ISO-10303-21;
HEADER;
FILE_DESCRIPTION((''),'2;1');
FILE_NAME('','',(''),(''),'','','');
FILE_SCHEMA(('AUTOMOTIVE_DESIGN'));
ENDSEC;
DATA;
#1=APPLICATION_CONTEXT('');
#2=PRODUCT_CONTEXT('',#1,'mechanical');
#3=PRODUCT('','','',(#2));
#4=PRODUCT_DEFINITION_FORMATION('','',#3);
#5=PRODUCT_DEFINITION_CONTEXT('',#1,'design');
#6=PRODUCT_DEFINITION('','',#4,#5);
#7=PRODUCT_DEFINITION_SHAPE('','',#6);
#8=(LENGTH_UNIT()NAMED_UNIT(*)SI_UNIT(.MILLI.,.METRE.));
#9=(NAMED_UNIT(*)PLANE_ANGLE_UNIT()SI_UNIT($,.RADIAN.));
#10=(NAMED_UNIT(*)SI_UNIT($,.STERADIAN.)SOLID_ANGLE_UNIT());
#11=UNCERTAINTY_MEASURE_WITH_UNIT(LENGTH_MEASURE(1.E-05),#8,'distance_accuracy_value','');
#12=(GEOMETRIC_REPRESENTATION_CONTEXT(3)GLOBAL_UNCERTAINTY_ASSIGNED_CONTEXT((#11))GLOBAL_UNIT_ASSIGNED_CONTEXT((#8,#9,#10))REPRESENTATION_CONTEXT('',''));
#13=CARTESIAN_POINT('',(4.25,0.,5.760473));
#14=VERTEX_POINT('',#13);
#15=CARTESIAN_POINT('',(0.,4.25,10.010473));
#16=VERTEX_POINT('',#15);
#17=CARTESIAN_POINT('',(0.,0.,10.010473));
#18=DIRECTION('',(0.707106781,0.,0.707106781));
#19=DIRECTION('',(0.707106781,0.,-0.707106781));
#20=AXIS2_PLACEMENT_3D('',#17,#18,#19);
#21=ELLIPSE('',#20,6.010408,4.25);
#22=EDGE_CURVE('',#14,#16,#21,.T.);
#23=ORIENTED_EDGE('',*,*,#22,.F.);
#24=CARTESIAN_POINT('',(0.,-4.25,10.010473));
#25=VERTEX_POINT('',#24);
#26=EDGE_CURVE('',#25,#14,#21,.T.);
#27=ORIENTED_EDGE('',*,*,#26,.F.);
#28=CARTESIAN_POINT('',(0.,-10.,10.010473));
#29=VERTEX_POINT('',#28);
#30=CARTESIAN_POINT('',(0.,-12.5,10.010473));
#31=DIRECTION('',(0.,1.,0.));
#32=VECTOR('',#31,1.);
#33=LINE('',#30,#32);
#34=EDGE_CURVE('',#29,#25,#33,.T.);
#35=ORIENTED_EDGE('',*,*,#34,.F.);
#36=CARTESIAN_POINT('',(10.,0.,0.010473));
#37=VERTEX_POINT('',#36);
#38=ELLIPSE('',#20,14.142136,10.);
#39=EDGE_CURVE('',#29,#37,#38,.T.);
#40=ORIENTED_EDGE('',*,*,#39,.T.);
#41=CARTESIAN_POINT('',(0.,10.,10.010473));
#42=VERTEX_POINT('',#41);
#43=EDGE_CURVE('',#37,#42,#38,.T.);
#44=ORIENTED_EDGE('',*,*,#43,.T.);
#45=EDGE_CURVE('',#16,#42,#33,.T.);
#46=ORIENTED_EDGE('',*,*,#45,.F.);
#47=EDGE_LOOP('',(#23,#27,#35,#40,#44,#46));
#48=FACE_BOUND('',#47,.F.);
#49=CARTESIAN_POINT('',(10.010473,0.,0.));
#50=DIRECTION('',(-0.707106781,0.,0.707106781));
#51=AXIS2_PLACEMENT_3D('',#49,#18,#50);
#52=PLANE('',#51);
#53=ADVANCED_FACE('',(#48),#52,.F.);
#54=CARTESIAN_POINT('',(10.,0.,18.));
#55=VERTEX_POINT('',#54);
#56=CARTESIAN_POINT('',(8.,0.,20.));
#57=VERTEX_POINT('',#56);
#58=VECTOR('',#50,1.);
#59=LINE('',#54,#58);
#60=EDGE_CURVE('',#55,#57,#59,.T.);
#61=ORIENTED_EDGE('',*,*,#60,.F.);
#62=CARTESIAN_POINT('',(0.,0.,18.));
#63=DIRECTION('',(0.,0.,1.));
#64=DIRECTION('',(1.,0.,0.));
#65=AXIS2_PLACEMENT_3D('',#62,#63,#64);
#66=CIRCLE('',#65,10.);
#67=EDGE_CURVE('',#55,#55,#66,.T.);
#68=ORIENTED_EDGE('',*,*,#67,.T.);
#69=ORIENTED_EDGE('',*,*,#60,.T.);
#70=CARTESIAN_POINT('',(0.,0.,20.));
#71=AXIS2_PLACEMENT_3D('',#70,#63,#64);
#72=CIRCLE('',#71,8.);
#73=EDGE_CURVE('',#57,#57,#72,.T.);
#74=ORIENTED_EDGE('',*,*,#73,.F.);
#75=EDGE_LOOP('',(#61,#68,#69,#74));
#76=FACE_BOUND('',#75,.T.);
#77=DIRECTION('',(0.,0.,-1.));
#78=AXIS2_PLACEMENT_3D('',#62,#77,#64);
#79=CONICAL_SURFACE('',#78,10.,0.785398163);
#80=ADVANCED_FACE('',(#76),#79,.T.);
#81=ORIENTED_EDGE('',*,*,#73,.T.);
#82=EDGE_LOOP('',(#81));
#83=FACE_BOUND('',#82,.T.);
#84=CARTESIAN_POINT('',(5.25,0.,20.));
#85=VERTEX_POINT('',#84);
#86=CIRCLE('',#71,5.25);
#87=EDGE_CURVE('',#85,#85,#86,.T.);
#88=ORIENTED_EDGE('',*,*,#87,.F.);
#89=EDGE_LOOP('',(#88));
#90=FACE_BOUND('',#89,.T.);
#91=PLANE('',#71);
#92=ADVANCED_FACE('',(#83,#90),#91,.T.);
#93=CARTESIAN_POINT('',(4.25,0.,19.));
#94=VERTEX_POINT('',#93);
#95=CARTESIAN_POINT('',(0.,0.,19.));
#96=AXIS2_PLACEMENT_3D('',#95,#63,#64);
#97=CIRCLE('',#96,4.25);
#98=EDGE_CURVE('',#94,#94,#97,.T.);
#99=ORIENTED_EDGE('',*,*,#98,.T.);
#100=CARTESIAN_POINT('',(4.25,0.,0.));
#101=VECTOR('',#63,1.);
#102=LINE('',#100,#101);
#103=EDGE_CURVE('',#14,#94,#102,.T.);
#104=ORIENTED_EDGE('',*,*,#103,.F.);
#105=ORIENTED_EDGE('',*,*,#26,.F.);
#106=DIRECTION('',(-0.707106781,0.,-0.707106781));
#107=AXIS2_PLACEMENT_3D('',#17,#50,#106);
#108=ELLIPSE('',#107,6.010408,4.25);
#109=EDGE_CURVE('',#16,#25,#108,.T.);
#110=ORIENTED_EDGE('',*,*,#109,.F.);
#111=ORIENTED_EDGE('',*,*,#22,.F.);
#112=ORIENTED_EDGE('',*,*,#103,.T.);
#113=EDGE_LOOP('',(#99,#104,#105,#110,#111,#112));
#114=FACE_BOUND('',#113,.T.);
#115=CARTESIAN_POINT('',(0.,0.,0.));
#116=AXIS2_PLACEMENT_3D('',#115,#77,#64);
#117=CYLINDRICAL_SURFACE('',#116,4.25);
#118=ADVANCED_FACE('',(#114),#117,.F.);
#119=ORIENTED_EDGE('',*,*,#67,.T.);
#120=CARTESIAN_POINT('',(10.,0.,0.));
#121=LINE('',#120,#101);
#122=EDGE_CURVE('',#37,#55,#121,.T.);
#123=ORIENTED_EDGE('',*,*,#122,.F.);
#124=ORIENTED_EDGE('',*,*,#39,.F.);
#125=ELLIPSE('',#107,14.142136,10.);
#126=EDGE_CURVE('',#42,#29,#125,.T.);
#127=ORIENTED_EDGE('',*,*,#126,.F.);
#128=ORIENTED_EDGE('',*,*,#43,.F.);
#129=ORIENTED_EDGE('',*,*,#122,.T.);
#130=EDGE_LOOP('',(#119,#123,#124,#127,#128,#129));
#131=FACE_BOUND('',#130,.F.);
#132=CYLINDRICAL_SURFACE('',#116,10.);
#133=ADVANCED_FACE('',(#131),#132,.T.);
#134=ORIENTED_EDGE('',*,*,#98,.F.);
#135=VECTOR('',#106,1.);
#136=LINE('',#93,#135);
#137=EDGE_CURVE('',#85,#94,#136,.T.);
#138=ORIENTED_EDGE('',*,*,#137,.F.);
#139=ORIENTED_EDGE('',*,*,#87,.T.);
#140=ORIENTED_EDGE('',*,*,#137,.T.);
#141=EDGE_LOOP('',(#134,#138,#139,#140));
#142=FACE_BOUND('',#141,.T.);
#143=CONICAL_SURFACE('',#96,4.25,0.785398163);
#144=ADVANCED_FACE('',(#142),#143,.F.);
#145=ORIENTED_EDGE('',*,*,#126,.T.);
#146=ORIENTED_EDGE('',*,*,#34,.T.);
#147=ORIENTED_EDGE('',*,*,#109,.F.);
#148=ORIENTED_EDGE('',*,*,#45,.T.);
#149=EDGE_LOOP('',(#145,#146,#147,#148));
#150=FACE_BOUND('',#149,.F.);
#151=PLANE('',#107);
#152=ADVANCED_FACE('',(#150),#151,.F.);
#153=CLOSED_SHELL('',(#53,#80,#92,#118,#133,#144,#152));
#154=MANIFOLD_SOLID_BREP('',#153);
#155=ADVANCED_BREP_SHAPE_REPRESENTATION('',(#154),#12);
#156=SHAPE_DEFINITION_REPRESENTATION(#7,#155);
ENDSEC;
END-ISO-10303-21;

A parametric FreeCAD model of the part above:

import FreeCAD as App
import Part
import Sketcher


def edges_at(feature, points):
    """Names of the edges that pass closest to the given points."""
    edges = feature.Shape.Edges
    near = lambda p: min(range(len(edges)), key=lambda i: edges[i].distToShape(Part.Vertex(*p))[0])
    return sorted({f"Edge{near(p) + 1}" for p in points})


def add_polygon(sketch, points):
    """Adds a closed chain of lines whose ends are joined by coincident constraints."""
    first, n = sketch.GeometryCount, len(points)
    for a, b in zip(points, points[1:] + points[:1]):
        sketch.addGeometry(Part.LineSegment(App.Vector(*a, 0), App.Vector(*b, 0)), False)
    for i in range(n):
        sketch.addConstraint(Sketcher.Constraint("Coincident", first + i, 2, first + (i + 1) % n, 1))

doc = App.newDocument("Part")
body = doc.addObject("PartDesign::Body", "Body")

# Sketch on XY plane
sketch1 = body.newObject("Sketcher::SketchObject", "Sketch")
sketch1.AttachmentSupport = (doc.getObject("XY_Plane"), [""])
sketch1.MapMode = "FlatFace"
sketch1.addGeometry(Part.Circle(App.Vector(0, 0, 0), App.Vector(0, 0, 1), 10), False)
sketch1.addGeometry(Part.Circle(App.Vector(0, 0, 0), App.Vector(0, 0, 1), 4.25), False)
sketch1.addConstraint(Sketcher.Constraint("Coincident", 0, 3, -1, 1))
sketch1.addConstraint(Sketcher.Constraint("Coincident", 1, 3, -1, 1))
sketch1.addConstraint(Sketcher.Constraint("Diameter", 0, 20.0))
sketch1.addConstraint(Sketcher.Constraint("Diameter", 1, 8.5))
pad1 = body.newObject("PartDesign::Pad", "Pad")
pad1.Profile = sketch1
pad1.Length = 20

# Sketch on XZ plane
sketch2 = body.newObject("Sketcher::SketchObject", "Sketch001")
sketch2.AttachmentSupport = (doc.getObject("XZ_Plane"), [""])
sketch2.MapMode = "FlatFace"
add_polygon(sketch2, [(0, 10.010473), (-10.010473, 0), (10.010473, 0)])  # lines 0-2
sketch2.addConstraint(Sketcher.Constraint("Horizontal", 1))
sketch2.addConstraint(Sketcher.Constraint("Symmetric", 0, 2, 1, 2, -1, 1))
sketch2.addConstraint(Sketcher.Constraint("PointOnObject", 2, 2, -2))
sketch2.addConstraint(Sketcher.Constraint("Perpendicular", 0, 2))
sketch2.addConstraint(Sketcher.Constraint("DistanceX", 1, 1, 1, 2, 20.020946))
pocket1 = body.newObject("PartDesign::Pocket", "Pocket")
pocket1.Profile = sketch2
pocket1.Length = 25
pocket1.Midplane = True
doc.recompute()

chamfer = body.newObject("PartDesign::Chamfer", "Chamfer")
chamfer.Base = (pocket1, edges_at(pocket1, [(-10, 0, 20)]))
chamfer.Size = 2
doc.recompute()

chamfer2 = body.newObject("PartDesign::Chamfer", "Chamfer001")
chamfer2.Base = (chamfer, edges_at(chamfer, [(-4.25, 0, 20)]))
chamfer2.Size = 1

doc.recompute()
